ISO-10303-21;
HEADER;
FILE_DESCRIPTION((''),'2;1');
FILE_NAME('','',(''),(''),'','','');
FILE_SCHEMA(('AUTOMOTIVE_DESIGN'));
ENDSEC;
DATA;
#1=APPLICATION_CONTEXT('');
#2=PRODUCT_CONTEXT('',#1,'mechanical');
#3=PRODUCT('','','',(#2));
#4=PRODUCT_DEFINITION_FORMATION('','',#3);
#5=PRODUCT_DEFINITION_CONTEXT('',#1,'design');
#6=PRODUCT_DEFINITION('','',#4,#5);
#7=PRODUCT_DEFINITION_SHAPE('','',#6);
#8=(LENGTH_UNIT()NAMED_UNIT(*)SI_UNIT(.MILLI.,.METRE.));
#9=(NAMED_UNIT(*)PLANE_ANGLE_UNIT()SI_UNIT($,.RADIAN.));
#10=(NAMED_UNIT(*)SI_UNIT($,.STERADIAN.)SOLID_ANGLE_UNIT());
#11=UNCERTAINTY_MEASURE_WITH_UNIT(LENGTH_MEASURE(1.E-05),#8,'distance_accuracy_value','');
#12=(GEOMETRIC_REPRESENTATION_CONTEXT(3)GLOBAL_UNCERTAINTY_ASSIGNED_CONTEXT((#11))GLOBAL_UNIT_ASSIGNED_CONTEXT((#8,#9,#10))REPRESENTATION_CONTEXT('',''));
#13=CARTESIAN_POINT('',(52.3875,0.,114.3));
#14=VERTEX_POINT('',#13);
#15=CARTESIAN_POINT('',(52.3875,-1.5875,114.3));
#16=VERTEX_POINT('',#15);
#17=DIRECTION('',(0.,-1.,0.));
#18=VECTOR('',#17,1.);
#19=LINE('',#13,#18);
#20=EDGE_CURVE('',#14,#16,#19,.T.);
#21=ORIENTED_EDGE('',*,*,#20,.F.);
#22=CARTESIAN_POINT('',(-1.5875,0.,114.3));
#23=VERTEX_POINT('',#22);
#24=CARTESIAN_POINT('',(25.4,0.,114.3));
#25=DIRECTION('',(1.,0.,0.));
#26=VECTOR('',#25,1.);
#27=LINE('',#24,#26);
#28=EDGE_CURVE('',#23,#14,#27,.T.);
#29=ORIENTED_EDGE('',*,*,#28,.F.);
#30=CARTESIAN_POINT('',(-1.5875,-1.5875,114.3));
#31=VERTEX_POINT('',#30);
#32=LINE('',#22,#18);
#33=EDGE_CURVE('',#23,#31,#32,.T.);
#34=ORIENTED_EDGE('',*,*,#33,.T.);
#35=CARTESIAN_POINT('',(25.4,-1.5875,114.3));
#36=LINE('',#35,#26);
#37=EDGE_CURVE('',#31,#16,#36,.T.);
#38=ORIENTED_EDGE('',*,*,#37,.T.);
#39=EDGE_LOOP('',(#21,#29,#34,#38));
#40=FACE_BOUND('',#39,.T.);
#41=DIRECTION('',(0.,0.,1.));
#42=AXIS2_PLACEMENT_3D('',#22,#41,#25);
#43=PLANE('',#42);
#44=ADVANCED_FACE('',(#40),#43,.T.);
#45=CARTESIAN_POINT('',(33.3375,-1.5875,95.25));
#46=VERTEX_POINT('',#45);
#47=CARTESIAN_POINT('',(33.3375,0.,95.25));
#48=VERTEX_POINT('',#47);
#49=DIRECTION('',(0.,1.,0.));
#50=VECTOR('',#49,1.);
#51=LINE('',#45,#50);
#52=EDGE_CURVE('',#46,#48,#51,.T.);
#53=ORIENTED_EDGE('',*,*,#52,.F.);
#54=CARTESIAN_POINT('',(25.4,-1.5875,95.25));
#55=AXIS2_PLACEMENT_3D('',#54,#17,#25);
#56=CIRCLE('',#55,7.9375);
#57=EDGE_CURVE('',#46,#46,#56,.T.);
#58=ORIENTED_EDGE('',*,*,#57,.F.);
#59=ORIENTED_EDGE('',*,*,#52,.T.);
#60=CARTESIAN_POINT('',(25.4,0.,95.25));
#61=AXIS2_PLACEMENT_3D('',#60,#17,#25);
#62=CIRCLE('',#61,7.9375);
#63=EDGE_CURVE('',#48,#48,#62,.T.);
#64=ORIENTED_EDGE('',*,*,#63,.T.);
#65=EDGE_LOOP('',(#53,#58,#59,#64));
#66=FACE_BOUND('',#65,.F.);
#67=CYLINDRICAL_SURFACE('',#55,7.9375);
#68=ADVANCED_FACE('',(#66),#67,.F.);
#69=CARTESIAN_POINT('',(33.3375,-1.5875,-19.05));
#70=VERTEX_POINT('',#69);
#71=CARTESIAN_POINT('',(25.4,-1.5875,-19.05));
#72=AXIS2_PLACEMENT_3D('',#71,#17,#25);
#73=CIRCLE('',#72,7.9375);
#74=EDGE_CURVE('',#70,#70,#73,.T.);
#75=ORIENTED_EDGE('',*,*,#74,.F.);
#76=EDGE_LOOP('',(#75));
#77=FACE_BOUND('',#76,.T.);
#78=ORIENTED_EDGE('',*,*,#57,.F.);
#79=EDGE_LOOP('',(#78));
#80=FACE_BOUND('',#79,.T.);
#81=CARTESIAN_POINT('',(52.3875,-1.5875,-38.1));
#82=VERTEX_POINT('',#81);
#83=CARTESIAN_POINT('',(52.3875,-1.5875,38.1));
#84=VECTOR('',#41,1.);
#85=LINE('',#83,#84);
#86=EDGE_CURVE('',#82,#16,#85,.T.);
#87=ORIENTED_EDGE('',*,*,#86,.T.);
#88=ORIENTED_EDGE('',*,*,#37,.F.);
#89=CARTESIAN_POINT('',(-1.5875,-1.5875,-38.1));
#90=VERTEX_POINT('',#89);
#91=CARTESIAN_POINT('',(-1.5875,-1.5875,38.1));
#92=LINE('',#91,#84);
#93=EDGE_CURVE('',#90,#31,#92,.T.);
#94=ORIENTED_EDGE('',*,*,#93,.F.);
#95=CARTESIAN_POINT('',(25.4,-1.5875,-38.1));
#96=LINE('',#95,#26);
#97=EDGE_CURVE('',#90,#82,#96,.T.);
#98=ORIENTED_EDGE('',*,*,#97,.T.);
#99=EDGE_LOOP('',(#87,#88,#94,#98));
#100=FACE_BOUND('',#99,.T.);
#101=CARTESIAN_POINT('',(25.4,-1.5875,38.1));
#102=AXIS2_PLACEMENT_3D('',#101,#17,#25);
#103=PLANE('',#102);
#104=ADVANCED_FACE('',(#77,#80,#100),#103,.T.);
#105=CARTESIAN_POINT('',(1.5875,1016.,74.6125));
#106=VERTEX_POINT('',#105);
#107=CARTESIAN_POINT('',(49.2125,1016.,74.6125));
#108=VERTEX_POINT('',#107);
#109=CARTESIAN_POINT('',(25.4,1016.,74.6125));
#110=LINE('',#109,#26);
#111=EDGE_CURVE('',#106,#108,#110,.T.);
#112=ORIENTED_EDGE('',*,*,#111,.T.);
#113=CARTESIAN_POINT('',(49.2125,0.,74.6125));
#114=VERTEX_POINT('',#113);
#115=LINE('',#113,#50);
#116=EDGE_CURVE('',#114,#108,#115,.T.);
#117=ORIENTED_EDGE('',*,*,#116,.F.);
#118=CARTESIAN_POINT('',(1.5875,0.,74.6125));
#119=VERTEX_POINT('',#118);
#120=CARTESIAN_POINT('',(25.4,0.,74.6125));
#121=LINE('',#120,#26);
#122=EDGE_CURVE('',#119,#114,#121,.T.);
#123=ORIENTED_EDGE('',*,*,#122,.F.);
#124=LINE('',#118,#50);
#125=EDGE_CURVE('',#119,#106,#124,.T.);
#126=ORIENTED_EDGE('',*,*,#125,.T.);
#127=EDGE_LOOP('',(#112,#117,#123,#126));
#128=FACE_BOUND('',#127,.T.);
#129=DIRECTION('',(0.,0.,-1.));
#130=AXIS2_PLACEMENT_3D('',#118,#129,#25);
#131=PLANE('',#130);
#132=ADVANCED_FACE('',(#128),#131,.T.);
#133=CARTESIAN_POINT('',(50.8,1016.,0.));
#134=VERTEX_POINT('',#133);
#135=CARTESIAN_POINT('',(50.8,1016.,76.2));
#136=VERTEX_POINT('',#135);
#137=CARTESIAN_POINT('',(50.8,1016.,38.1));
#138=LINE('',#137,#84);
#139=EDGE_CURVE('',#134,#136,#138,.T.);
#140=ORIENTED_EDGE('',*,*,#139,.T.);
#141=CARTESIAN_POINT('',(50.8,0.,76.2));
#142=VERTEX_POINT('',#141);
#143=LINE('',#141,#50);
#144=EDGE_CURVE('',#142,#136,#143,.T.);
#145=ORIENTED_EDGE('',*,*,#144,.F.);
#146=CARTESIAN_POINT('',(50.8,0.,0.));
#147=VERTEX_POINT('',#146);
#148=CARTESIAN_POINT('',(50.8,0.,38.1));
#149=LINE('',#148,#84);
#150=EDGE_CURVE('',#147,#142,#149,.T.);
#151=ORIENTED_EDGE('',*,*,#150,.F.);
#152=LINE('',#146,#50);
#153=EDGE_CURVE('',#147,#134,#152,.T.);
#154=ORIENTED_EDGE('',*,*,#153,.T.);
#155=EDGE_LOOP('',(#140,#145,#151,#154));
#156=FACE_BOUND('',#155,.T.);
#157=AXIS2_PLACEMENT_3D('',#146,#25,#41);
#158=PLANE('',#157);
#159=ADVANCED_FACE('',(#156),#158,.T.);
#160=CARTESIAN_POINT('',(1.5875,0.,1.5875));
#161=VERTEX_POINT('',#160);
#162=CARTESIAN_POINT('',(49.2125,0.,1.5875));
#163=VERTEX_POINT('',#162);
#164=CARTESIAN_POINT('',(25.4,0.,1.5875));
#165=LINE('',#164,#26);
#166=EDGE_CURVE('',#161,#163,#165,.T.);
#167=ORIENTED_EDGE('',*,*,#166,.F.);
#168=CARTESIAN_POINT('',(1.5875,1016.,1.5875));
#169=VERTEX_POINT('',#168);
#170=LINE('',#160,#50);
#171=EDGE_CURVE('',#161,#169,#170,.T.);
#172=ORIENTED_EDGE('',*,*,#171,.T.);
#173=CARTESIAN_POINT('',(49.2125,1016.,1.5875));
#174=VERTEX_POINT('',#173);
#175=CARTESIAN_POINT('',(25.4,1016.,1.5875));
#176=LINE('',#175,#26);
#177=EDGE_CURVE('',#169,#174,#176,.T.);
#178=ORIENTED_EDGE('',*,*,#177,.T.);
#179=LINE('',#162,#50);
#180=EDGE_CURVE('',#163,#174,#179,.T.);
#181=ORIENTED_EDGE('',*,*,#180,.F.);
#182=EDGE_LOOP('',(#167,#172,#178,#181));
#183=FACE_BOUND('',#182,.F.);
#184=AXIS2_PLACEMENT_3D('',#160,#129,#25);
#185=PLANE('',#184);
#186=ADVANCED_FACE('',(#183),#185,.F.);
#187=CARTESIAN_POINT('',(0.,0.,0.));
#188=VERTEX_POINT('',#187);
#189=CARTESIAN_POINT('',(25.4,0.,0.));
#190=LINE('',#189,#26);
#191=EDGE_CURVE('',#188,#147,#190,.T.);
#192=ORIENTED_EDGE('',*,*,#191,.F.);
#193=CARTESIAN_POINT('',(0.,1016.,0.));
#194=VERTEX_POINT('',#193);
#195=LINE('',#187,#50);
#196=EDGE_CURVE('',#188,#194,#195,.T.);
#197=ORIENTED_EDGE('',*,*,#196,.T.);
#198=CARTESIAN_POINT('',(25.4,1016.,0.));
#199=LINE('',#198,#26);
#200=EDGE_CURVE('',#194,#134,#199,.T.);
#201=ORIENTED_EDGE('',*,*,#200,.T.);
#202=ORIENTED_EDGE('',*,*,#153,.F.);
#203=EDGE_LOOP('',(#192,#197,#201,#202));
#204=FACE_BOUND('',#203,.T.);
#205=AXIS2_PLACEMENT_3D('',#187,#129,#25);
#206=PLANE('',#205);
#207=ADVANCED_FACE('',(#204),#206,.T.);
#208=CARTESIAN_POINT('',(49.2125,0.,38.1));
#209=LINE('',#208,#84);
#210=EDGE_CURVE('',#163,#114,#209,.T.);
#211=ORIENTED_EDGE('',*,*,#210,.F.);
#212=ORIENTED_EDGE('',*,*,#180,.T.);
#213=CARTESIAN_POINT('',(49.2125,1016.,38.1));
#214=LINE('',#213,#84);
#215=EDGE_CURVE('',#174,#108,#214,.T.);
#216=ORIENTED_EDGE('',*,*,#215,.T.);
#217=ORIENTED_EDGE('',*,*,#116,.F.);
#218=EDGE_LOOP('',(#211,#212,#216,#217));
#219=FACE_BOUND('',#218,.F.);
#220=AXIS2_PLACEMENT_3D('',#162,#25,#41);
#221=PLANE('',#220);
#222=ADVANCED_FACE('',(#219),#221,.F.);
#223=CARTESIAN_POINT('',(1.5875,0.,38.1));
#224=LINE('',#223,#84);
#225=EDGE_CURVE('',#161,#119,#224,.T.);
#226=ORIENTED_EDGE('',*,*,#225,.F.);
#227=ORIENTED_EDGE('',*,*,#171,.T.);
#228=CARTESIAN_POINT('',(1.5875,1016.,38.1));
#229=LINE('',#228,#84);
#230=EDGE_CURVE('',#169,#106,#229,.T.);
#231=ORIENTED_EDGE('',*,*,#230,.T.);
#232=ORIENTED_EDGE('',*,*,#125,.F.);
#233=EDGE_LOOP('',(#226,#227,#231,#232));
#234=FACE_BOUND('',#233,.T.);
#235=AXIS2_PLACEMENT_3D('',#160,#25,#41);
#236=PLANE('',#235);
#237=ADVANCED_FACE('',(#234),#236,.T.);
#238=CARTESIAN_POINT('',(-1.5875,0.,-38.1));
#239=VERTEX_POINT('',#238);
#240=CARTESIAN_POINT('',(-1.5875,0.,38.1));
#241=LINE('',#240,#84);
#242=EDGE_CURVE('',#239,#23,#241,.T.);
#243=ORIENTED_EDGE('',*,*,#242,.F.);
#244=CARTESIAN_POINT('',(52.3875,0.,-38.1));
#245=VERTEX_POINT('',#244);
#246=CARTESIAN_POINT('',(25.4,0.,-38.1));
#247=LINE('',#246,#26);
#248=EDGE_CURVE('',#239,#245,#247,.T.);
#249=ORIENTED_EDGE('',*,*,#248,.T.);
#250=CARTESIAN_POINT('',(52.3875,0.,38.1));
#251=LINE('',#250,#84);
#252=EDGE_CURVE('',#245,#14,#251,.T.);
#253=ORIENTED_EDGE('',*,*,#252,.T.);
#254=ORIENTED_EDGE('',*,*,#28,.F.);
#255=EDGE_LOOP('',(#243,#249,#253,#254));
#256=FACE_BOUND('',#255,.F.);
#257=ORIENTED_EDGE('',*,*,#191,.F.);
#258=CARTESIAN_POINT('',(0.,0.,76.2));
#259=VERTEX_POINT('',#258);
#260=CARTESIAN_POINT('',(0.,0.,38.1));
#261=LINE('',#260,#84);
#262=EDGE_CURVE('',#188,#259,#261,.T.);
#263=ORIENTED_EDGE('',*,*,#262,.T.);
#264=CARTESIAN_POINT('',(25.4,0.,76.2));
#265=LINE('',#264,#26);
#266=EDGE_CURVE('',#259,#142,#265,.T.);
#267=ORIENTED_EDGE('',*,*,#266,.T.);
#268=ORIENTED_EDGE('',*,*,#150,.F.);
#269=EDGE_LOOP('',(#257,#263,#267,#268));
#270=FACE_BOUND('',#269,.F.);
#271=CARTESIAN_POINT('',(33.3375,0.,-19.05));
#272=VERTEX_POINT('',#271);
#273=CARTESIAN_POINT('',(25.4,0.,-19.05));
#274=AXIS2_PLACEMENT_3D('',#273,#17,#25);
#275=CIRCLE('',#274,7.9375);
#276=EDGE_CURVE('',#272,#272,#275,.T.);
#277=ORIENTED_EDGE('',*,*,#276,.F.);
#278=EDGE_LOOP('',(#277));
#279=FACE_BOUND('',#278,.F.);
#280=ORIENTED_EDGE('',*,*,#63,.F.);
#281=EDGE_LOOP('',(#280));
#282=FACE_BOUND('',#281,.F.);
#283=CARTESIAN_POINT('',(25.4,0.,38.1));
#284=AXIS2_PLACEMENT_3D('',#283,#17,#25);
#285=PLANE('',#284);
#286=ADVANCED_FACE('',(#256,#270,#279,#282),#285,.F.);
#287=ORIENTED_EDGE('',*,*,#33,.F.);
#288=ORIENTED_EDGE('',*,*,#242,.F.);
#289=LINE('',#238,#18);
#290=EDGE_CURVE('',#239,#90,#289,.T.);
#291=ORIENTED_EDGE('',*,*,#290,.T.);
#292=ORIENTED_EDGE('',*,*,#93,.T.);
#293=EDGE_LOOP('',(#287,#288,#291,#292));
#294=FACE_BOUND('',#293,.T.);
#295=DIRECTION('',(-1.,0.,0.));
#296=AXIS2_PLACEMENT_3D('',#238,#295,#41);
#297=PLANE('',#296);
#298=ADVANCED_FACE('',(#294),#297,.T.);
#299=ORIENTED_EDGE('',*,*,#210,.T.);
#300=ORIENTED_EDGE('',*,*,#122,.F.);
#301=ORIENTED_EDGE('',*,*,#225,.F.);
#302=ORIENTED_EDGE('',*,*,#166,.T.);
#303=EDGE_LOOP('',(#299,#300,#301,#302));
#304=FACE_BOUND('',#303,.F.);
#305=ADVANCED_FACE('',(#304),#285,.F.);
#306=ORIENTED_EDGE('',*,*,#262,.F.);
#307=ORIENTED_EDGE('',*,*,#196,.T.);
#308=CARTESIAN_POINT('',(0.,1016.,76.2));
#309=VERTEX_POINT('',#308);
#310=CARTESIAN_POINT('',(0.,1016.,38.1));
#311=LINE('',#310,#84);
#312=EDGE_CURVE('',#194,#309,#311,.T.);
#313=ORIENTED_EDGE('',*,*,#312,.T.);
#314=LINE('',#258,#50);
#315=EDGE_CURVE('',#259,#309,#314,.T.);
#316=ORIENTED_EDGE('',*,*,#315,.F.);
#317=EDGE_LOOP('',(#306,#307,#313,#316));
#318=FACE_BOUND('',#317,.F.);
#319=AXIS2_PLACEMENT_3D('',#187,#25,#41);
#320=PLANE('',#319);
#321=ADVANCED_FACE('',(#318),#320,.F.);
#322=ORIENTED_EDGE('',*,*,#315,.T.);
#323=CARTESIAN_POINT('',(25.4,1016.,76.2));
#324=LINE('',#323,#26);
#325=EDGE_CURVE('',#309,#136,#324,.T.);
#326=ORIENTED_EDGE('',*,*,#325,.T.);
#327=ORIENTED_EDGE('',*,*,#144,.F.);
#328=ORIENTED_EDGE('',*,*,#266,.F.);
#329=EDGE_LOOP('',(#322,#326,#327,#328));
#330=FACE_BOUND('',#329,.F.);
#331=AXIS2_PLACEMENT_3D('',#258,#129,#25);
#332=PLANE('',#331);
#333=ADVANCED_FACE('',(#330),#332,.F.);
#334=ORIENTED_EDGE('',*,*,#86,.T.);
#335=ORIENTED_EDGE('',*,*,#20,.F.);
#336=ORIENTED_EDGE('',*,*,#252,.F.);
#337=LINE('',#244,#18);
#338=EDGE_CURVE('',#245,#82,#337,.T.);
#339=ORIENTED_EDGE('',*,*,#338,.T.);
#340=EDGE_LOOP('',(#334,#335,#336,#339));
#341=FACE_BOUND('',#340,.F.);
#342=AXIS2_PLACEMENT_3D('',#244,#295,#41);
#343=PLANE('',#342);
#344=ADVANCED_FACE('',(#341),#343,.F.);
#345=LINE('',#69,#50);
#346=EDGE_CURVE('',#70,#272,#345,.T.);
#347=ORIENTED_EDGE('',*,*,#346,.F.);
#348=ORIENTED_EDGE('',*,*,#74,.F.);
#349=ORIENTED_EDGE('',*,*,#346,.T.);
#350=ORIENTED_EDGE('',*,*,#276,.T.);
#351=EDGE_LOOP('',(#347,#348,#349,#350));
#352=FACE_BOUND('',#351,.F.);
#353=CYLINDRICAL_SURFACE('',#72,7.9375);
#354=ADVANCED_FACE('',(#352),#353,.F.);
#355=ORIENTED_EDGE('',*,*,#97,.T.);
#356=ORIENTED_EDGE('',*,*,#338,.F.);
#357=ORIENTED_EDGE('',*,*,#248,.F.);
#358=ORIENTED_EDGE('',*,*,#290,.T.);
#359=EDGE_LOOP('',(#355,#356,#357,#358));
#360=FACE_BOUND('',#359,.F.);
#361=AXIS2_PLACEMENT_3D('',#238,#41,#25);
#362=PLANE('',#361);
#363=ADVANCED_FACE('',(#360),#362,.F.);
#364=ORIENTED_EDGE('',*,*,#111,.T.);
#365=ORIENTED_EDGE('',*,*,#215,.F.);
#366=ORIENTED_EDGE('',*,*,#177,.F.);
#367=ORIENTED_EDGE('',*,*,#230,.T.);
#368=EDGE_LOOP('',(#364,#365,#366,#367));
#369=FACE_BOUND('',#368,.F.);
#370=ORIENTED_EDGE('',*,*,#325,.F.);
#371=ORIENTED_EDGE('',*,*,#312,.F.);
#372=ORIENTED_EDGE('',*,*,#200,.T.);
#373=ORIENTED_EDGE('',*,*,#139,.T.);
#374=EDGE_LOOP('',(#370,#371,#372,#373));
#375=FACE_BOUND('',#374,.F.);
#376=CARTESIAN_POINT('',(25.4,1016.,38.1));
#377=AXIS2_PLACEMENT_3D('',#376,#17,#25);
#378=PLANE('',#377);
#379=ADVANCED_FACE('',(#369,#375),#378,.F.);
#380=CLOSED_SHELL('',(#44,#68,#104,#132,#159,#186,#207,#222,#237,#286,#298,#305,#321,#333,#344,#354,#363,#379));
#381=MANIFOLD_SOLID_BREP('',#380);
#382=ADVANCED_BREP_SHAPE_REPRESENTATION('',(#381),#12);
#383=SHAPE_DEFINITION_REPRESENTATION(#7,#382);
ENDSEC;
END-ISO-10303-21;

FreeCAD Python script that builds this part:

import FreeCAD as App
import Part
import Sketcher
from FreeCAD import Vector
Q = App.Units.Quantity


def add_polygon(sketch, points):
    """Adds a closed chain of lines whose ends are joined by coincident constraints."""
    first, n = sketch.GeometryCount, len(points)
    for a, b in zip(points, points[1:] + points[:1]):
        sketch.addGeometry(Part.LineSegment(App.Vector(*a, 0), App.Vector(*b, 0)), False)
    for i in range(n):
        sketch.addConstraint(Sketcher.Constraint("Coincident", first + i, 2, first + (i + 1) % n, 1))

doc = App.newDocument("Part")
body = doc.addObject("PartDesign::Body", "Body")

# Sketch on XZ plane
sketch1 = doc.addObject("Sketcher::SketchObject", "Sketch")
body.addObject(sketch1)
sketch1.AttachmentSupport = (doc.XZ_Plane, [""])
sketch1.MapMode = "FlatFace"
add_polygon(sketch1, [(0, 76), (0, 0), (51, 0), (51, 76)])  # lines 0-3
add_polygon(sketch1, [(49, 2), (2, 2), (2, 75), (49, 75)])  # lines 4-7
sketch1.addConstraint([
    Sketcher.Constraint("Vertical", 0),
    Sketcher.Constraint("Horizontal", 1),
    Sketcher.Constraint("Vertical", 2),
    Sketcher.Constraint("Horizontal", 3),
    Sketcher.Constraint("Horizontal", 4),
    Sketcher.Constraint("Vertical", 5),
    Sketcher.Constraint("Horizontal", 6),
    Sketcher.Constraint("Vertical", 7),
    Sketcher.Constraint("Coincident", 0, 2, -1, 1),
    Sketcher.Constraint("DistanceX", 1, 1, 1, 2, Q("2 in")),
    Sketcher.Constraint("DistanceY", 0, 2, 0, 1, Q("3 in")),
    Sketcher.Constraint("DistanceX", 4, 2, 4, 1, Q("1.875 in")),
    Sketcher.Constraint("DistanceY", 5, 1, 5, 2, Q("2.875 in")),
    Sketcher.Constraint("DistanceX", -1, 1, 4, 2, Q("0.0625 in")),
    Sketcher.Constraint("DistanceY", -1, 1, 4, 2, Q("0.0625 in")),
])
pad1 = doc.addObject("PartDesign::Pad", "Pad")
body.addObject(pad1)
pad1.Profile = sketch1
pad1.Length = Q("40 in")
pad1.Reversed = True

# Sketch on XZ plane
sketch2 = doc.addObject("Sketcher::SketchObject", "Sketch001")
body.addObject(sketch2)
sketch2.AttachmentSupport = (doc.XZ_Plane, [""])
sketch2.MapMode = "FlatFace"
add_polygon(sketch2, [(-2, 114), (-2, -38), (52, -38), (52, 114)])  # lines 0-3
sketch2.addConstraint([
    Sketcher.Constraint("Vertical", 0),
    Sketcher.Constraint("Horizontal", 1),
    Sketcher.Constraint("Vertical", 2),
    Sketcher.Constraint("Horizontal", 3),
    Sketcher.Constraint("DistanceY", 0, 2, 0, 1, Q("6 in")),
    Sketcher.Constraint("DistanceY", 0, 2, -1, 1, Q("1.5 in")),
    Sketcher.Constraint("DistanceX", 1, 1, 1, 2, Q("2.125 in")),
    Sketcher.Constraint("DistanceX", 0, 2, -1, 1, Q("0.0625 in")),
])
pad2 = doc.addObject("PartDesign::Pad", "Pad001")
body.addObject(pad2)
pad2.Profile = sketch2
pad2.Length = Q("0.0625 in")

# Sketch on XZ plane
sketch3 = doc.addObject("Sketcher::SketchObject", "Sketch002")
body.addObject(sketch3)
sketch3.AttachmentSupport = (doc.XZ_Plane, [""])
sketch3.MapMode = "FlatFace"
sketch3.AttachmentOffset = App.Placement(Vector(0, 0, 0.0625 * 25.4), App.Rotation())
sketch3.addGeometry([
    Part.Circle(Vector(25, 95, 0), Vector(0, 0, 1), 8),
    Part.Circle(Vector(25, -19, 0), Vector(0, 0, 1), 8),
], False)
sketch3.addConstraint([
    Sketcher.Constraint("Equal", 0, 1),
    Sketcher.Constraint("Vertical", 0, 3, 1, 3),
    Sketcher.Constraint("Diameter", 0, Q("0.625 in")),
    Sketcher.Constraint("DistanceX", -1, 1, 0, 3, Q("1 in")),
    Sketcher.Constraint("DistanceY", 1, 3, 0, 3, Q("4.5 in")),
    Sketcher.Constraint("DistanceY", -1, 1, 0, 3, Q("3.75 in")),
])
pocket1 = doc.addObject("PartDesign::Pocket", "Pocket")
body.addObject(pocket1)
pocket1.Profile = sketch3
pocket1.Type = "ThroughAll"

doc.recompute()
